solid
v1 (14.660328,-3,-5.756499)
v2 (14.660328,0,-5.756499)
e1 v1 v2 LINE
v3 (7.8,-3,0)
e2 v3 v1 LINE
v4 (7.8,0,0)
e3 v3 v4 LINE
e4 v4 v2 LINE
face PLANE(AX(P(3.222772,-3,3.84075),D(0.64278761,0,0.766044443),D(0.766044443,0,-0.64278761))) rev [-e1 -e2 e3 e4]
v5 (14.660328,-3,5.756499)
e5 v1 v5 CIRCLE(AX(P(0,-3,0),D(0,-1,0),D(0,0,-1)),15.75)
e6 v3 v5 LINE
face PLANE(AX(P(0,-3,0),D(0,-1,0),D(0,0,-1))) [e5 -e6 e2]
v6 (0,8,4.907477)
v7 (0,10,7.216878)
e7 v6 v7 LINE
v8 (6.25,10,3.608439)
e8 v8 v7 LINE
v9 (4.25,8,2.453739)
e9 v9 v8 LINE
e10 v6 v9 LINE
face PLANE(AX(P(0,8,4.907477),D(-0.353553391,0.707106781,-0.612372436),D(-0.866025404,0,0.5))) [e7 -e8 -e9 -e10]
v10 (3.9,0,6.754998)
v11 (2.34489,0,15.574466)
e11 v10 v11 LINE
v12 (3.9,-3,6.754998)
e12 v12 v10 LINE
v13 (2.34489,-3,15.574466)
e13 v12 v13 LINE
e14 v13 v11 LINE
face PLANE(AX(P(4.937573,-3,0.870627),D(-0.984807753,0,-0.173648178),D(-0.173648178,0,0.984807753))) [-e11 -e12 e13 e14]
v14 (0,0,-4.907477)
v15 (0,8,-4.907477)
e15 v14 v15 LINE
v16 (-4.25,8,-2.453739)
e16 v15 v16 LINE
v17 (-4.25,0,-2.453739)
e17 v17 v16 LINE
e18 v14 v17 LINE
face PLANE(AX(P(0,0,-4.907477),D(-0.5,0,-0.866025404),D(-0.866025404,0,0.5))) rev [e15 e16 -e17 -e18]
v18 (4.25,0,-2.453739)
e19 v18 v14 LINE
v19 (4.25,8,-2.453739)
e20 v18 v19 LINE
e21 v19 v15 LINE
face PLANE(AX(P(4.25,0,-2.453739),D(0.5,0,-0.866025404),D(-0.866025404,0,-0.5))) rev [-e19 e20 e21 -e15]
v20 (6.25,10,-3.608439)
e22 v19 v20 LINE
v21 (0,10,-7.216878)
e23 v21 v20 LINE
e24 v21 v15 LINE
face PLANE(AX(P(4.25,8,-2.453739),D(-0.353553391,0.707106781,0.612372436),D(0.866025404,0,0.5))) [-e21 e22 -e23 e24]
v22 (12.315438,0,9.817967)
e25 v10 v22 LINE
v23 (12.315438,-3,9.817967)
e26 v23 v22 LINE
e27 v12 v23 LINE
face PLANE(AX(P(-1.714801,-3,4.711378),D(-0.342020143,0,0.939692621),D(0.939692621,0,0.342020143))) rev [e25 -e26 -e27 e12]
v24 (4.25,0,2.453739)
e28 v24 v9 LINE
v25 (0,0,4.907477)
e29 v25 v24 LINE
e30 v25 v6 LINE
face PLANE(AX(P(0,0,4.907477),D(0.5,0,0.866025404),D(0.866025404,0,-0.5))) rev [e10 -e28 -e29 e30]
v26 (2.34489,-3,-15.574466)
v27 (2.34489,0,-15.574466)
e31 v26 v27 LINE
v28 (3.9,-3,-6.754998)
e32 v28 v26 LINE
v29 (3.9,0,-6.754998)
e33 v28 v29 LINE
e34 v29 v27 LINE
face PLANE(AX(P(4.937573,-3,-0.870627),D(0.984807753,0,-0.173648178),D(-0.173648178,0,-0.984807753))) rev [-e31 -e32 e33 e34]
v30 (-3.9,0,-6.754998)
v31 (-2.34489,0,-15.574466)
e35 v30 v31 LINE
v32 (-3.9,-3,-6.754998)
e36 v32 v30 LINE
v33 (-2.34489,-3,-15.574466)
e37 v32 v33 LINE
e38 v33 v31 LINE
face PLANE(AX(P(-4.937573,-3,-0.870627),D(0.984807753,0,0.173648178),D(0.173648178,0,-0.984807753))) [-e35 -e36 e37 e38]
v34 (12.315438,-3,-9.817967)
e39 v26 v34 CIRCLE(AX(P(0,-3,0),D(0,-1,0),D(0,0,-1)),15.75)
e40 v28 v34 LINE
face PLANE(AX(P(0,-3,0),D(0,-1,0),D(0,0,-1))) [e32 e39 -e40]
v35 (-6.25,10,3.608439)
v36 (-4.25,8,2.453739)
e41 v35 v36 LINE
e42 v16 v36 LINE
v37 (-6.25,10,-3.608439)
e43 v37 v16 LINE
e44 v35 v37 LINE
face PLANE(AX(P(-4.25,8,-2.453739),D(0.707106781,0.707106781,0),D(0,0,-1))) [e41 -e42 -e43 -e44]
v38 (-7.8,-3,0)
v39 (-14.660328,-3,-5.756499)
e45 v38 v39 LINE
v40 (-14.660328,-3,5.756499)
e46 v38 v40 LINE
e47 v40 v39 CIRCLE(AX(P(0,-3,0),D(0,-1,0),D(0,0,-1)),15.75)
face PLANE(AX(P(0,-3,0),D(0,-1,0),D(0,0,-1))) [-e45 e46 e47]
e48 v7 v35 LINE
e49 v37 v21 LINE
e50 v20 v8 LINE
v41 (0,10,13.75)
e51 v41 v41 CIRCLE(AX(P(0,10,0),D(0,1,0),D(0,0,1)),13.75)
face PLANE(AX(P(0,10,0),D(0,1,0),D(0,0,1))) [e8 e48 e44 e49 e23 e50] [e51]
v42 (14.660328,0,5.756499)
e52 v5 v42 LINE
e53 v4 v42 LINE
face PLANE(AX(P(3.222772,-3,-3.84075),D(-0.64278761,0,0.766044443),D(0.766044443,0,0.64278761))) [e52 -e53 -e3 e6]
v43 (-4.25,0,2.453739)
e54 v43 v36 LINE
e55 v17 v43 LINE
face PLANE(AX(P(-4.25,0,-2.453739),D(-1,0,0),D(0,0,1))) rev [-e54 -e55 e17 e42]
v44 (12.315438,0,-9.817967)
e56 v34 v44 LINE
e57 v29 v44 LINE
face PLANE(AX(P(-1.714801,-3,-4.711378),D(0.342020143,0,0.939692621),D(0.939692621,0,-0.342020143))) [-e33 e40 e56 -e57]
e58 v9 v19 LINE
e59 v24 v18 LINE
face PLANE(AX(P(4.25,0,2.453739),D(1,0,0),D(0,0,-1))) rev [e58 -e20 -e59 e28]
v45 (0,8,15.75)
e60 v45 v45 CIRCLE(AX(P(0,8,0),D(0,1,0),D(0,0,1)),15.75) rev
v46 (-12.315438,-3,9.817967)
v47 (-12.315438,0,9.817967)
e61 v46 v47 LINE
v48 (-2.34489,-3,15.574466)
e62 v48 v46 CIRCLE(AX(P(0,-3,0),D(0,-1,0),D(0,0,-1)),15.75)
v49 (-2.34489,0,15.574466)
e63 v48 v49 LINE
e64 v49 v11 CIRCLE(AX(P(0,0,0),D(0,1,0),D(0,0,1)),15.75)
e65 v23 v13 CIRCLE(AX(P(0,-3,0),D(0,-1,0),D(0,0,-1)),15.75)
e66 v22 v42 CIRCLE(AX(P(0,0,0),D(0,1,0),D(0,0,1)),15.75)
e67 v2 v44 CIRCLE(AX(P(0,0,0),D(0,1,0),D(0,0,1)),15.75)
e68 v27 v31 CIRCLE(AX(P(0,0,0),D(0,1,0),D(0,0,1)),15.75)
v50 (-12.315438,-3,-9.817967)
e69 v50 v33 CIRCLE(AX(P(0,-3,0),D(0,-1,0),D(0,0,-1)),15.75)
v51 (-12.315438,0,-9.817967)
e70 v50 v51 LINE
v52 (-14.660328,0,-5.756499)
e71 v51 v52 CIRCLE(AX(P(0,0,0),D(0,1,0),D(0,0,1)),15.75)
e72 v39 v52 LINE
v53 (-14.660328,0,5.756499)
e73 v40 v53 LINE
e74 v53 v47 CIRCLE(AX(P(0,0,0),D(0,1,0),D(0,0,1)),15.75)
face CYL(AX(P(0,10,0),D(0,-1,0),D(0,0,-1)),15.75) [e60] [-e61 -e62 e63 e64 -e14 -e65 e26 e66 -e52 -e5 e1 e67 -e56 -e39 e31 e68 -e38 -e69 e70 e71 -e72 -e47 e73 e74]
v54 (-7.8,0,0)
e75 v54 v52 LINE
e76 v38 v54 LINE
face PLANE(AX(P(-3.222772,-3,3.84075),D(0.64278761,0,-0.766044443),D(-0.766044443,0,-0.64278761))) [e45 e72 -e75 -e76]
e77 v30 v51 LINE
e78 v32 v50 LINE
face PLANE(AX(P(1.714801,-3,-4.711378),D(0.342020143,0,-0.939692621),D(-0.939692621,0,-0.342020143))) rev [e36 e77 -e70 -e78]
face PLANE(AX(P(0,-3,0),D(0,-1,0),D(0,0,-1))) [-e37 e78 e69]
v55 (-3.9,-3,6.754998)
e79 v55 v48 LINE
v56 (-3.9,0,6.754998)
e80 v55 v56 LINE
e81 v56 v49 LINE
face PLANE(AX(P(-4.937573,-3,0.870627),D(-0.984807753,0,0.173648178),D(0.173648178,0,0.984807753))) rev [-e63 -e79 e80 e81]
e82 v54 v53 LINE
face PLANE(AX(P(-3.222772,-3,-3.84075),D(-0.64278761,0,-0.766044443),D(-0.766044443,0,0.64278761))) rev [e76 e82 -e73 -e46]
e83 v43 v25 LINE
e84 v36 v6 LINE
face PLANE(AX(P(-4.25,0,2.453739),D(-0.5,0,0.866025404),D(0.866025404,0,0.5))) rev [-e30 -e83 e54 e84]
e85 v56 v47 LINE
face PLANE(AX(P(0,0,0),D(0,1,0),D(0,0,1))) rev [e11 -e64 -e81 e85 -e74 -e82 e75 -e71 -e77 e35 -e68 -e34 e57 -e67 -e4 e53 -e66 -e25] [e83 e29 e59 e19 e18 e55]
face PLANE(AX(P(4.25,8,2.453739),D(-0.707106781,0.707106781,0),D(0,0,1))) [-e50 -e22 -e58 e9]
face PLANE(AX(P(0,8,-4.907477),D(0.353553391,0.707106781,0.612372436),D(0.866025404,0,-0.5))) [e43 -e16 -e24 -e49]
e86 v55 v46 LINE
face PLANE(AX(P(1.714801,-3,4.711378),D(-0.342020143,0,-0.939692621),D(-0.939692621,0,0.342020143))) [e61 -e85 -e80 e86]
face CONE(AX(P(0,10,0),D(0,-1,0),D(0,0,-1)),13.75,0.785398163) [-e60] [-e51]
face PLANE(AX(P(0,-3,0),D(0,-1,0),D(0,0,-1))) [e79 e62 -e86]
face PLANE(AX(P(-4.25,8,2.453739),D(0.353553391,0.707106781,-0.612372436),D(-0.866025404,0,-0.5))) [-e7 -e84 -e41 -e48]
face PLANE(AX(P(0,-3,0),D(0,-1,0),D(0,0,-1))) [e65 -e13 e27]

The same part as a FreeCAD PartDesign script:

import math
import FreeCAD as App
import Part
import Sketcher

V = App.Vector
Q = App.Units.Quantity


def edges_at(feature, points):
    """Names of the edges that pass closest to the given points."""
    edges = feature.Shape.Edges
    near = lambda p: min(range(len(edges)), key=lambda i: edges[i].distToShape(Part.Vertex(*p))[0])
    return sorted({f"Edge{near(p) + 1}" for p in points})

doc = App.newDocument("Part")
body = doc.addObject("PartDesign::Body", "Body")

sketch1 = body.newObject("Sketcher::SketchObject", "Sketch")
sketch1.AttachmentSupport = (doc.getObject("XZ_Plane"), [""])
sketch1.MapMode = "FlatFace"
sketch1.addGeometry(Part.Circle(V(0, 0, 0), V(0, 0, 1), 16), False)
sketch1.addConstraint([
    Sketcher.Constraint("Coincident", 0, 3, -1, 1),
    Sketcher.Constraint("Diameter", 0, 31.5),
])
pad1 = body.newObject("PartDesign::Pad", "Pad")
pad1.Profile = sketch1
pad1.Length = 10
pad1.Reversed = True

sketch2 = body.newObject("Sketcher::SketchObject", "Sketch001")
sketch2.AttachmentSupport = (doc.getObject("XZ_Plane"), [""])
sketch2.MapMode = "FlatFace"
sketch2.AttachmentOffset = App.Placement(V(0, 0, -10), App.Rotation())
sketch2.addGeometry([
    Part.LineSegment(V(4.2, -2.5, 0), V(0, -4.9, 0)),
    Part.LineSegment(V(0, -4.9, 0), V(-4.2, -2.5, 0)),
    Part.LineSegment(V(-4.2, -2.5, 0), V(-4.2, 2.5, 0)),
    Part.LineSegment(V(-4.2, 2.5, 0), V(0, 4.9, 0)),
    Part.LineSegment(V(0, 4.9, 0), V(4.2, 2.5, 0)),
    Part.LineSegment(V(4.2, 2.5, 0), V(4.2, -2.5, 0)),
], False)
sketch2.addConstraint([
    Sketcher.Constraint("Coincident", 0, 2, 1, 1),
    Sketcher.Constraint("Coincident", 1, 2, 2, 1),
    Sketcher.Constraint("Coincident", 2, 2, 3, 1),
    Sketcher.Constraint("Coincident", 3, 2, 4, 1),
    Sketcher.Constraint("Coincident", 4, 2, 5, 1),
    Sketcher.Constraint("Coincident", 5, 2, 0, 1),
    Sketcher.Constraint("Vertical", 2),
    Sketcher.Constraint("Vertical", 5),
    Sketcher.Constraint("Symmetric", 0, 2, 3, 2, -1, 1),
    Sketcher.Constraint("Symmetric", 1, 2, 4, 2, -1, 1),
    Sketcher.Constraint("PointOnObject", 0, 2, -2),
    Sketcher.Constraint("Parallel", 0, 3),
    Sketcher.Constraint("Horizontal", 2, 2, 4, 2),
    Sketcher.Constraint("Angle", 0, Q("-150 deg")),
    Sketcher.Constraint("DistanceX", 2, 2, 4, 2, 8.5),
    Sketcher.Constraint("DistanceY", 2, 1, 2, 2, 4.907477),
])
pocket1 = body.newObject("PartDesign::Pocket", "Pocket")
pocket1.Profile = sketch2
pocket1.Length = 10
pocket1.Reversed = True

sketch3 = body.newObject("Sketcher::SketchObject", "Sketch002")
sketch3.AttachmentSupport = (doc.getObject("XZ_Plane"), [""])
sketch3.MapMode = "FlatFace"
sketch3.AttachmentOffset = App.Placement(V(0, 0, 3), App.Rotation())
sketch3.addGeometry([
    Part.LineSegment(V(-15, -6, 0), V(-8, 0, 0)),
    Part.LineSegment(V(-8, 0, 0), V(-15, 6, 0)),
    Part.ArcOfCircle(Part.Circle(V(0, 0, 0), V(0, 0, 1), 16), math.radians(159), math.radians(201)),
    Part.LineSegment(V(-4, -7, 0), V(-12, -10, 0)),
    Part.ArcOfCircle(Part.Circle(V(0, 0, 0), V(0, 0, 1), 16), math.radians(-141), math.radians(-99)),
    Part.LineSegment(V(-2, -16, 0), V(-4, -7, 0)),
    Part.LineSegment(V(4, -7, 0), V(2, -16, 0)),
    Part.ArcOfCircle(Part.Circle(V(0, 0, 0), V(0, 0, 1), 16), math.radians(-81), math.radians(-39)),
    Part.LineSegment(V(12, -10, 0), V(4, -7, 0)),
    Part.LineSegment(V(8, 0, 0), V(15, -6, 0)),
    Part.ArcOfCircle(Part.Circle(V(0, 0, 0), V(0, 0, 1), 16), math.radians(-21), math.radians(0)),
    Part.ArcOfCircle(Part.Circle(V(0, 0, 0), V(0, 0, 1), 16), math.radians(0), math.radians(21)),
    Part.LineSegment(V(15, 6, 0), V(8, 0, 0)),
    Part.ArcOfCircle(Part.Circle(V(0, 0, 0), V(0, 0, 1), 16), math.radians(39), math.radians(81)),
    Part.LineSegment(V(2, 16, 0), V(4, 7, 0)),
    Part.LineSegment(V(4, 7, 0), V(12, 10, 0)),
    Part.ArcOfCircle(Part.Circle(V(0, 0, 0), V(0, 0, 1), 16), math.radians(99), math.radians(141)),
    Part.LineSegment(V(-12, 10, 0), V(-4, 7, 0)),
    Part.LineSegment(V(-4, 7, 0), V(-2, 16, 0)),
], False)
sketch3.addConstraint([
    Sketcher.Constraint("Coincident", 0, 2, 1, 1),
    Sketcher.Constraint("Coincident", 1, 2, 2, 1),
    Sketcher.Constraint("Coincident", 2, 2, 0, 1),
    Sketcher.Constraint("Coincident", 3, 2, 4, 1),
    Sketcher.Constraint("Coincident", 4, 2, 5, 1),
    Sketcher.Constraint("Coincident", 5, 2, 3, 1),
    Sketcher.Constraint("Coincident", 6, 2, 7, 1),
    Sketcher.Constraint("Coincident", 7, 2, 8, 1),
    Sketcher.Constraint("Coincident", 8, 2, 6, 1),
    Sketcher.Constraint("Coincident", 9, 2, 10, 1),
    Sketcher.Constraint("Tangent", 10, 2, 11, 1),
    Sketcher.Constraint("Coincident", 11, 2, 12, 1),
    Sketcher.Constraint("Coincident", 12, 2, 9, 1),
    Sketcher.Constraint("Coincident", 13, 2, 14, 1),
    Sketcher.Constraint("Coincident", 14, 2, 15, 1),
    Sketcher.Constraint("Coincident", 15, 2, 13, 1),
    Sketcher.Constraint("Coincident", 16, 2, 17, 1),
    Sketcher.Constraint("Coincident", 17, 2, 18, 1),
    Sketcher.Constraint("Coincident", 18, 2, 16, 1),
    Sketcher.Constraint("Coincident", 2, 3, -1, 1),
    Sketcher.Constraint("Coincident", 4, 3, -1, 1),
    Sketcher.Constraint("Coincident", 7, 3, -1, 1),
    Sketcher.Constraint("Coincident", 10, 3, -1, 1),
    Sketcher.Constraint("Coincident", 13, 3, -1, 1),
    Sketcher.Constraint("Coincident", 16, 3, -1, 1),
    Sketcher.Constraint("Equal", 2, 4),
    Sketcher.Constraint("Equal", 4, 7),
    Sketcher.Constraint("Equal", 7, 10),
    Sketcher.Constraint("Equal", 10, 11),
    Sketcher.Constraint("Equal", 11, 13),
    Sketcher.Constraint("Equal", 13, 16),
    Sketcher.Constraint("Symmetric", 0, 2, 12, 2, -1, 1),
    Sketcher.Constraint("Symmetric", 5, 2, 14, 2, -1, 1),
    Sketcher.Constraint("Symmetric", 8, 2, 17, 2, -1, 1),
    Sketcher.Constraint("Symmetric", 5, 2, 8, 2, -2),
    Sketcher.Constraint("PointOnObject", 0, 2, -1),
    Sketcher.Constraint("PointOnObject", 10, 2, -1),
    Sketcher.Constraint("Parallel", 1, 9),
    Sketcher.Constraint("Parallel", 0, 12),
    Sketcher.Constraint("Parallel", 5, 14),
    Sketcher.Constraint("Parallel", 3, 15),
    Sketcher.Constraint("Parallel", 8, 17),
    Sketcher.Constraint("Parallel", 6, 18),
    Sketcher.Constraint("Horizontal", 4, 2, 6, 2),
    Sketcher.Constraint("Horizontal", 3, 2, 7, 2),
    Sketcher.Constraint("Horizontal", 2, 2, 9, 2),
    Sketcher.Constraint("Equal", 1, 3),
    Sketcher.Constraint("Equal", 3, 5),
    Sketcher.Constraint("Angle", 0, Q("40 deg")),
    Sketcher.Constraint("Angle", 3, Q("-160 deg")),
    Sketcher.Constraint("Angle", 5, Q("100 deg")),
    Sketcher.Constraint("Radius", 2, 15.75),
    Sketcher.Constraint("DistanceX", 0, 2, -1, 1, 7.8),
])
pad2 = body.newObject("PartDesign::Pad", "Pad001")
pad2.Profile = sketch3
pad2.Length = 3
pad2.Reversed = True
doc.recompute()

chamfer = body.newObject("PartDesign::Chamfer", "Chamfer")
chamfer.Base = (pad2, edges_at(pad2, [
    (4.25, 10, 0),
    (2.125, 10, -3.681),
    (-2.125, 10, -3.681),
    (-4.25, 10, 0),
    (-2.125, 10, 3.681),
    (2.125, 10, 3.681),
    (0, 10, -15.75),
]))
chamfer.Size = 2

doc.recompute()
